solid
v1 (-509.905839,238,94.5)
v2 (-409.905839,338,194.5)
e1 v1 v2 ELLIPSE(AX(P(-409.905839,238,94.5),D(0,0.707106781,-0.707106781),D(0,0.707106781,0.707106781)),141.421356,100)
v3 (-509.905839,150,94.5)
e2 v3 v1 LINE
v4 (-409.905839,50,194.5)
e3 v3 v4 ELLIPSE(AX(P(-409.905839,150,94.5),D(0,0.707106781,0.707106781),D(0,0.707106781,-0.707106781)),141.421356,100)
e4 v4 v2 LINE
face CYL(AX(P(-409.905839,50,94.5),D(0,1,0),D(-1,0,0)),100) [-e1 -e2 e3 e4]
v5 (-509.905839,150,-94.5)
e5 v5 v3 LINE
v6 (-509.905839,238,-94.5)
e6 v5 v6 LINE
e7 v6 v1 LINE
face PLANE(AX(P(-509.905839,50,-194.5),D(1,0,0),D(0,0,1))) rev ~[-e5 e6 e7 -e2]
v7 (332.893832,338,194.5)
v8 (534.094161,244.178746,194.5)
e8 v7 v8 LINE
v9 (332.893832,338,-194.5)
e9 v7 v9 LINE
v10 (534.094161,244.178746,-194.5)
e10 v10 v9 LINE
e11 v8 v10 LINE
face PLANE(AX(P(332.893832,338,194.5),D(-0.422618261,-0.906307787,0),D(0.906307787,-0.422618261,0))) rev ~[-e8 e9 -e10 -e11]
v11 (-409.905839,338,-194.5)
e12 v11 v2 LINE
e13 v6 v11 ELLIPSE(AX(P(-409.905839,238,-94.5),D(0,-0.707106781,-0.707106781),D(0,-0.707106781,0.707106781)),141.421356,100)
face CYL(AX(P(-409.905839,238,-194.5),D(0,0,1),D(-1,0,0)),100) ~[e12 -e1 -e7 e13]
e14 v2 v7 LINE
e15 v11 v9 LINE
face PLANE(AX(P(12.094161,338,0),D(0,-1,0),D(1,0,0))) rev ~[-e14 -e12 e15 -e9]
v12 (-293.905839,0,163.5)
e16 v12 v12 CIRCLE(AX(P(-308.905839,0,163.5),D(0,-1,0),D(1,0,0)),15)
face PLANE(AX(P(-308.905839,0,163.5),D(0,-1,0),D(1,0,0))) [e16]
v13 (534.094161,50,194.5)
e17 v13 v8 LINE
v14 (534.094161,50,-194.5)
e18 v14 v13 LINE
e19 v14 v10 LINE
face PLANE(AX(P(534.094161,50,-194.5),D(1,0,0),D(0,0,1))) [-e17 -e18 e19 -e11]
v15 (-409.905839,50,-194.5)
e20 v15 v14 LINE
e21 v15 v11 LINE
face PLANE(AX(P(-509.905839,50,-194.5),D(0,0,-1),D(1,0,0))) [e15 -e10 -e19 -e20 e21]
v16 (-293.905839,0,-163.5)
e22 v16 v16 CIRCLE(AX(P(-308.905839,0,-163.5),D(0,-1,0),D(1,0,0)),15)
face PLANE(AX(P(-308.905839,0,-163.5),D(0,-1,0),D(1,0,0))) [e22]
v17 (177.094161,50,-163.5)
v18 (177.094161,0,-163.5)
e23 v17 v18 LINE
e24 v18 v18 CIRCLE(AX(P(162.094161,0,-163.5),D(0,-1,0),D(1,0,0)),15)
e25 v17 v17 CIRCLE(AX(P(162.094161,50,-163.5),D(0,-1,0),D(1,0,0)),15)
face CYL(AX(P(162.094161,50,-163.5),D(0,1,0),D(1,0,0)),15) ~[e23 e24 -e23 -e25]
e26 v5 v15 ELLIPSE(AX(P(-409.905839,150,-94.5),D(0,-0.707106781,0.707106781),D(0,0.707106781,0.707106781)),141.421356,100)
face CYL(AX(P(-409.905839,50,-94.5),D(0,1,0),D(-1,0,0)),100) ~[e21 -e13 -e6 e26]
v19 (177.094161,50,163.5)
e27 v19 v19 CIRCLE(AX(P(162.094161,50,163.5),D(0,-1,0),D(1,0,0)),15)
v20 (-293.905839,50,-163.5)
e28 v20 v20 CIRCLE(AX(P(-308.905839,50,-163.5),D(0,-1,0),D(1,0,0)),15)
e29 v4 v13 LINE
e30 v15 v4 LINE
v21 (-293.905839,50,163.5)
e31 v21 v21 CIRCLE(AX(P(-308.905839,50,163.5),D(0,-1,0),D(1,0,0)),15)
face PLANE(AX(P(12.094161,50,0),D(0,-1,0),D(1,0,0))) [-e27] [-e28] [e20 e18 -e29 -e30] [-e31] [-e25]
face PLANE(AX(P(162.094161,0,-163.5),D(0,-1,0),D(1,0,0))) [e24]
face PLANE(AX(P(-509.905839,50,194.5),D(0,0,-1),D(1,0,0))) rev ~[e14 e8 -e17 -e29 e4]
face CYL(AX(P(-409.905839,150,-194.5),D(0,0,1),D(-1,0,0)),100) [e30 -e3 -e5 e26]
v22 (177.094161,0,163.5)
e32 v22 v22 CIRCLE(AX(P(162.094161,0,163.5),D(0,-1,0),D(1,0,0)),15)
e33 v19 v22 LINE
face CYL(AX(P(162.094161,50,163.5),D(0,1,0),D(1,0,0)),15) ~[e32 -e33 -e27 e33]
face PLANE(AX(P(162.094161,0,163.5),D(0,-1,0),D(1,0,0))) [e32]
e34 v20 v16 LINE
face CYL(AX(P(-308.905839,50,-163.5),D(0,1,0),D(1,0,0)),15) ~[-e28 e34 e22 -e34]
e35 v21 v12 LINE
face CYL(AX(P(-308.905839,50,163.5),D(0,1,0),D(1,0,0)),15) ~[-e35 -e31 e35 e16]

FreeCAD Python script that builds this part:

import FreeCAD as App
import Part
import Sketcher

V = App.Vector
Q = App.Units.Quantity


def edges_at(feature, points):
    """Names of the edges that pass closest to the given points."""
    edges = feature.Shape.Edges
    near = lambda p: min(range(len(edges)), key=lambda i: edges[i].distToShape(Part.Vertex(*p))[0])
    return sorted({f"Edge{near(p) + 1}" for p in points})


def add_polygon(sketch, points):
    """Adds a closed chain of lines whose ends are joined by coincident constraints."""
    first, n = sketch.GeometryCount, len(points)
    for a, b in zip(points, points[1:] + points[:1]):
        sketch.addGeometry(Part.LineSegment(App.Vector(*a, 0), App.Vector(*b, 0)), False)
    for i in range(n):
        sketch.addConstraint(Sketcher.Constraint("Coincident", first + i, 2, first + (i + 1) % n, 1))

doc = App.newDocument("Part")
body = doc.addObject("PartDesign::Body", "Body")

# Sketch on XZ plane
sketch1 = body.newObject("Sketcher::SketchObject", "Sketch")
sketch1.AttachmentSupport = (doc.getObject("XZ_Plane"), [""])
sketch1.MapMode = "FlatFace"
add_polygon(sketch1, [(-510, 194), (-510, -194), (534, -194), (534, 194)])  # lines 0-3
sketch1.addConstraint(Sketcher.Constraint("Vertical", 0))
sketch1.addConstraint(Sketcher.Constraint("Horizontal", 1))
sketch1.addConstraint(Sketcher.Constraint("Vertical", 2))
sketch1.addConstraint(Sketcher.Constraint("Horizontal", 3))
sketch1.addConstraint(Sketcher.Constraint("DistanceX", 1, 1, 1, 2, Q("1044 mm")))
sketch1.addConstraint(Sketcher.Constraint("DistanceY", 0, 2, 0, 1, Q("389 mm")))
sketch1.addConstraint(Sketcher.Constraint("DistanceY", 0, 2, -1, 1, Q("194.5 mm")))
sketch1.addConstraint(Sketcher.Constraint("DistanceX", 0, 2, -1, 1, Q("509.905839 mm")))
pad1 = body.newObject("PartDesign::Pad", "Pad")
pad1.Profile = sketch1
pad1.Length = 288
pad1.Reversed = True
doc.recompute()

fillet = body.newObject("PartDesign::Fillet", "Fillet")
fillet.Base = (pad1, edges_at(pad1, [
    (-509.906, 144, 194.5),
    (-509.906, 288, 0),
    (-509.906, 144, -194.5),
    (-509.906, 0, 0),
]))
fillet.Radius = 100

# Sketch on XY plane
sketch2 = body.newObject("Sketcher::SketchObject", "Sketch001")
sketch2.AttachmentSupport = (doc.getObject("XY_Plane"), [""])
sketch2.MapMode = "FlatFace"
sketch2.AttachmentOffset = App.Placement(V(0, 0, 194.5), App.Rotation())
add_polygon(sketch2, [(534, 288), (333, 288), (534, 194)])  # lines 0-2
sketch2.addConstraint(Sketcher.Constraint("Horizontal", 0))
sketch2.addConstraint(Sketcher.Constraint("Vertical", 2))
sketch2.addConstraint(Sketcher.Constraint("Angle", 1, Q("-25 deg")))
sketch2.addConstraint(Sketcher.Constraint("Distance", 1, Q("222 mm")))
sketch2.addConstraint(Sketcher.Constraint("DistanceY", -1, 1, 0, 2, Q("288 mm")))
sketch2.addConstraint(Sketcher.Constraint("DistanceX", -1, 1, 0, 2, Q("332.893832 mm")))
pocket1 = body.newObject("PartDesign::Pocket", "Pocket")
pocket1.Profile = sketch2
pocket1.Type = "ThroughAll"

# Sketch on XZ plane
sketch3 = body.newObject("Sketcher::SketchObject", "Sketch002")
sketch3.AttachmentSupport = (doc.getObject("XZ_Plane"), [""])
sketch3.MapMode = "FlatFace"
sketch3.addGeometry(Part.Circle(V(162, -164, 0), V(0, 0, 1), 15), False)
sketch3.addGeometry(Part.Circle(V(-309, -164, 0), V(0, 0, 1), 15), False)
sketch3.addGeometry(Part.Circle(V(162, 164, 0), V(0, 0, 1), 15), False)
sketch3.addGeometry(Part.Circle(V(-309, 164, 0), V(0, 0, 1), 15), False)
sketch3.addConstraint(Sketcher.Constraint("Equal", 0, 1))
sketch3.addConstraint(Sketcher.Constraint("Equal", 1, 2))
sketch3.addConstraint(Sketcher.Constraint("Equal", 2, 3))
sketch3.addConstraint(Sketcher.Constraint("Symmetric", 0, 3, 2, 3, -1))
sketch3.addConstraint(Sketcher.Constraint("Symmetric", 1, 3, 3, 3, -1))
sketch3.addConstraint(Sketcher.Constraint("Horizontal", 0, 3, 1, 3))
sketch3.addConstraint(Sketcher.Constraint("Diameter", 0, Q("30 mm")))
sketch3.addConstraint(Sketcher.Constraint("DistanceX", 1, 3, 0, 3, Q("471 mm")))
sketch3.addConstraint(Sketcher.Constraint("DistanceY", 0, 3, 2, 3, Q("327 mm")))
sketch3.addConstraint(Sketcher.Constraint("DistanceX", -1, 1, 0, 3, Q("162.094161 mm")))
pad2 = body.newObject("PartDesign::Pad", "Pad001")
pad2.Profile = sketch3
pad2.Length = 50
body2 = doc.addObject("PartDesign::Body", "Body001")
doc.recompute()

body.Placement = App.Placement(V(0, 50, 0), App.Rotation(V(0, 0, 1), 0))
boolean = body2.newObject("PartDesign::Boolean", "Boolean")
boolean.Type = "Fuse"
boolean.addObjects([body])

doc.recompute()
